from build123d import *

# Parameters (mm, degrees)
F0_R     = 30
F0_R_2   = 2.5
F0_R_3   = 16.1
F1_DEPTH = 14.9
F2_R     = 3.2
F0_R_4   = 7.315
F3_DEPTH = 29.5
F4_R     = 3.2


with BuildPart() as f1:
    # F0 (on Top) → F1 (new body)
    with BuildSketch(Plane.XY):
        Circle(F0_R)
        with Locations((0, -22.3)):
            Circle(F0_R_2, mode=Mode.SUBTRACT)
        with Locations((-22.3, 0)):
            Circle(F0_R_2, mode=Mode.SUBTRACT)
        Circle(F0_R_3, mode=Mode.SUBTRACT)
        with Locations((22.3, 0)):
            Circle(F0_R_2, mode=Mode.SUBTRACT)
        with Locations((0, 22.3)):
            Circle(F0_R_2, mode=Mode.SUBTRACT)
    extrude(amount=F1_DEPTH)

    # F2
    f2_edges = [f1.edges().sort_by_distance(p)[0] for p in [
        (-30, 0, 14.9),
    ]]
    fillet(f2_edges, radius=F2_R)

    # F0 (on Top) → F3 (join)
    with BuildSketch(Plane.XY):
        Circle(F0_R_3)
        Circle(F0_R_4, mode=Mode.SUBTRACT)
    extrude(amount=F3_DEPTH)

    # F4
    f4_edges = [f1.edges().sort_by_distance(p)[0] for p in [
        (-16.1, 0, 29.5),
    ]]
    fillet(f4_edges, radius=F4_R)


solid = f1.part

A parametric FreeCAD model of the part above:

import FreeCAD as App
import Part
import Sketcher

V = App.Vector
Q = App.Units.Quantity


def edges_at(feature, points):
    """Names of the edges that pass closest to the given points."""
    edges = feature.Shape.Edges
    near = lambda p: min(range(len(edges)), key=lambda i: edges[i].distToShape(Part.Vertex(*p))[0])
    return sorted({f"Edge{near(p) + 1}" for p in points})

doc = App.newDocument("Part")
body = doc.addObject("PartDesign::Body", "Body")

sketch1 = body.newObject("Sketcher::SketchObject", "Sketch")
sketch1.AttachmentSupport = (doc.getObject("XY_Plane"), [""])
sketch1.MapMode = "FlatFace"
sketch1.addGeometry([
    Part.Circle(V(0, 0, 0), V(0, 0, 1), 30),
    Part.Circle(V(0, -22.3, 0), V(0, 0, 1), 2.5),
    Part.Circle(V(-22.3, 0, 0), V(0, 0, 1), 2.5),
    Part.Circle(V(0, 0, 0), V(0, 0, 1), 16.1),
    Part.Circle(V(22.3, 0, 0), V(0, 0, 1), 2.5),
    Part.Circle(V(0, 22.3, 0), V(0, 0, 1), 2.5),
], False)
sketch1.addConstraint([
    Sketcher.Constraint("Coincident", 0, 3, -1, 1),
    Sketcher.Constraint("Coincident", 3, 3, -1, 1),
    Sketcher.Constraint("Equal", 1, 2),
    Sketcher.Constraint("Equal", 2, 4),
    Sketcher.Constraint("Equal", 4, 5),
    Sketcher.Constraint("Symmetric", 2, 3, 4, 3, -1, 1),
    Sketcher.Constraint("Symmetric", 1, 3, 5, 3, -1, 1),
    Sketcher.Constraint("PointOnObject", 1, 3, -2),
    Sketcher.Constraint("PointOnObject", 2, 3, -1),
    Sketcher.Constraint("Diameter", 0, Q("60 mm")),
    Sketcher.Constraint("Diameter", 1, Q("5 mm")),
    Sketcher.Constraint("Diameter", 3, Q("32.2 mm")),
    Sketcher.Constraint("DistanceY", 1, 3, -1, 1, Q("22.3 mm")),
    Sketcher.Constraint("DistanceX", 2, 3, -1, 1, Q("22.3 mm")),
])
pad1 = body.newObject("PartDesign::Pad", "Pad")
pad1.Profile = sketch1
pad1.Length = 14.9
doc.recompute()

fillet = body.newObject("PartDesign::Fillet", "Fillet")
fillet.Base = (pad1, edges_at(pad1, [(-30, 0, 14.9)]))
fillet.Radius = 3.2

sketch2 = body.newObject("Sketcher::SketchObject", "Sketch001")
sketch2.AttachmentSupport = (doc.getObject("XY_Plane"), [""])
sketch2.MapMode = "FlatFace"
sketch2.addGeometry([
    Part.Circle(V(0, 0, 0), V(0, 0, 1), 16.1),
    Part.Circle(V(0, 0, 0), V(0, 0, 1), 7.315),
], False)
sketch2.addConstraint([
    Sketcher.Constraint("Coincident", 0, 3, -1, 1),
    Sketcher.Constraint("Coincident", 1, 3, -1, 1),
    Sketcher.Constraint("Diameter", 0, Q("32.2 mm")),
    Sketcher.Constraint("Diameter", 1, Q("14.63 mm")),
])
pad2 = body.newObject("PartDesign::Pad", "Pad001")
pad2.Profile = sketch2
pad2.Length = 29.5
doc.recompute()

fillet2 = body.newObject("PartDesign::Fillet", "Fillet001")
fillet2.Base = (pad2, edges_at(pad2, [(-16.1, 0, 29.5)]))
fillet2.Radius = 3.2

doc.recompute()
